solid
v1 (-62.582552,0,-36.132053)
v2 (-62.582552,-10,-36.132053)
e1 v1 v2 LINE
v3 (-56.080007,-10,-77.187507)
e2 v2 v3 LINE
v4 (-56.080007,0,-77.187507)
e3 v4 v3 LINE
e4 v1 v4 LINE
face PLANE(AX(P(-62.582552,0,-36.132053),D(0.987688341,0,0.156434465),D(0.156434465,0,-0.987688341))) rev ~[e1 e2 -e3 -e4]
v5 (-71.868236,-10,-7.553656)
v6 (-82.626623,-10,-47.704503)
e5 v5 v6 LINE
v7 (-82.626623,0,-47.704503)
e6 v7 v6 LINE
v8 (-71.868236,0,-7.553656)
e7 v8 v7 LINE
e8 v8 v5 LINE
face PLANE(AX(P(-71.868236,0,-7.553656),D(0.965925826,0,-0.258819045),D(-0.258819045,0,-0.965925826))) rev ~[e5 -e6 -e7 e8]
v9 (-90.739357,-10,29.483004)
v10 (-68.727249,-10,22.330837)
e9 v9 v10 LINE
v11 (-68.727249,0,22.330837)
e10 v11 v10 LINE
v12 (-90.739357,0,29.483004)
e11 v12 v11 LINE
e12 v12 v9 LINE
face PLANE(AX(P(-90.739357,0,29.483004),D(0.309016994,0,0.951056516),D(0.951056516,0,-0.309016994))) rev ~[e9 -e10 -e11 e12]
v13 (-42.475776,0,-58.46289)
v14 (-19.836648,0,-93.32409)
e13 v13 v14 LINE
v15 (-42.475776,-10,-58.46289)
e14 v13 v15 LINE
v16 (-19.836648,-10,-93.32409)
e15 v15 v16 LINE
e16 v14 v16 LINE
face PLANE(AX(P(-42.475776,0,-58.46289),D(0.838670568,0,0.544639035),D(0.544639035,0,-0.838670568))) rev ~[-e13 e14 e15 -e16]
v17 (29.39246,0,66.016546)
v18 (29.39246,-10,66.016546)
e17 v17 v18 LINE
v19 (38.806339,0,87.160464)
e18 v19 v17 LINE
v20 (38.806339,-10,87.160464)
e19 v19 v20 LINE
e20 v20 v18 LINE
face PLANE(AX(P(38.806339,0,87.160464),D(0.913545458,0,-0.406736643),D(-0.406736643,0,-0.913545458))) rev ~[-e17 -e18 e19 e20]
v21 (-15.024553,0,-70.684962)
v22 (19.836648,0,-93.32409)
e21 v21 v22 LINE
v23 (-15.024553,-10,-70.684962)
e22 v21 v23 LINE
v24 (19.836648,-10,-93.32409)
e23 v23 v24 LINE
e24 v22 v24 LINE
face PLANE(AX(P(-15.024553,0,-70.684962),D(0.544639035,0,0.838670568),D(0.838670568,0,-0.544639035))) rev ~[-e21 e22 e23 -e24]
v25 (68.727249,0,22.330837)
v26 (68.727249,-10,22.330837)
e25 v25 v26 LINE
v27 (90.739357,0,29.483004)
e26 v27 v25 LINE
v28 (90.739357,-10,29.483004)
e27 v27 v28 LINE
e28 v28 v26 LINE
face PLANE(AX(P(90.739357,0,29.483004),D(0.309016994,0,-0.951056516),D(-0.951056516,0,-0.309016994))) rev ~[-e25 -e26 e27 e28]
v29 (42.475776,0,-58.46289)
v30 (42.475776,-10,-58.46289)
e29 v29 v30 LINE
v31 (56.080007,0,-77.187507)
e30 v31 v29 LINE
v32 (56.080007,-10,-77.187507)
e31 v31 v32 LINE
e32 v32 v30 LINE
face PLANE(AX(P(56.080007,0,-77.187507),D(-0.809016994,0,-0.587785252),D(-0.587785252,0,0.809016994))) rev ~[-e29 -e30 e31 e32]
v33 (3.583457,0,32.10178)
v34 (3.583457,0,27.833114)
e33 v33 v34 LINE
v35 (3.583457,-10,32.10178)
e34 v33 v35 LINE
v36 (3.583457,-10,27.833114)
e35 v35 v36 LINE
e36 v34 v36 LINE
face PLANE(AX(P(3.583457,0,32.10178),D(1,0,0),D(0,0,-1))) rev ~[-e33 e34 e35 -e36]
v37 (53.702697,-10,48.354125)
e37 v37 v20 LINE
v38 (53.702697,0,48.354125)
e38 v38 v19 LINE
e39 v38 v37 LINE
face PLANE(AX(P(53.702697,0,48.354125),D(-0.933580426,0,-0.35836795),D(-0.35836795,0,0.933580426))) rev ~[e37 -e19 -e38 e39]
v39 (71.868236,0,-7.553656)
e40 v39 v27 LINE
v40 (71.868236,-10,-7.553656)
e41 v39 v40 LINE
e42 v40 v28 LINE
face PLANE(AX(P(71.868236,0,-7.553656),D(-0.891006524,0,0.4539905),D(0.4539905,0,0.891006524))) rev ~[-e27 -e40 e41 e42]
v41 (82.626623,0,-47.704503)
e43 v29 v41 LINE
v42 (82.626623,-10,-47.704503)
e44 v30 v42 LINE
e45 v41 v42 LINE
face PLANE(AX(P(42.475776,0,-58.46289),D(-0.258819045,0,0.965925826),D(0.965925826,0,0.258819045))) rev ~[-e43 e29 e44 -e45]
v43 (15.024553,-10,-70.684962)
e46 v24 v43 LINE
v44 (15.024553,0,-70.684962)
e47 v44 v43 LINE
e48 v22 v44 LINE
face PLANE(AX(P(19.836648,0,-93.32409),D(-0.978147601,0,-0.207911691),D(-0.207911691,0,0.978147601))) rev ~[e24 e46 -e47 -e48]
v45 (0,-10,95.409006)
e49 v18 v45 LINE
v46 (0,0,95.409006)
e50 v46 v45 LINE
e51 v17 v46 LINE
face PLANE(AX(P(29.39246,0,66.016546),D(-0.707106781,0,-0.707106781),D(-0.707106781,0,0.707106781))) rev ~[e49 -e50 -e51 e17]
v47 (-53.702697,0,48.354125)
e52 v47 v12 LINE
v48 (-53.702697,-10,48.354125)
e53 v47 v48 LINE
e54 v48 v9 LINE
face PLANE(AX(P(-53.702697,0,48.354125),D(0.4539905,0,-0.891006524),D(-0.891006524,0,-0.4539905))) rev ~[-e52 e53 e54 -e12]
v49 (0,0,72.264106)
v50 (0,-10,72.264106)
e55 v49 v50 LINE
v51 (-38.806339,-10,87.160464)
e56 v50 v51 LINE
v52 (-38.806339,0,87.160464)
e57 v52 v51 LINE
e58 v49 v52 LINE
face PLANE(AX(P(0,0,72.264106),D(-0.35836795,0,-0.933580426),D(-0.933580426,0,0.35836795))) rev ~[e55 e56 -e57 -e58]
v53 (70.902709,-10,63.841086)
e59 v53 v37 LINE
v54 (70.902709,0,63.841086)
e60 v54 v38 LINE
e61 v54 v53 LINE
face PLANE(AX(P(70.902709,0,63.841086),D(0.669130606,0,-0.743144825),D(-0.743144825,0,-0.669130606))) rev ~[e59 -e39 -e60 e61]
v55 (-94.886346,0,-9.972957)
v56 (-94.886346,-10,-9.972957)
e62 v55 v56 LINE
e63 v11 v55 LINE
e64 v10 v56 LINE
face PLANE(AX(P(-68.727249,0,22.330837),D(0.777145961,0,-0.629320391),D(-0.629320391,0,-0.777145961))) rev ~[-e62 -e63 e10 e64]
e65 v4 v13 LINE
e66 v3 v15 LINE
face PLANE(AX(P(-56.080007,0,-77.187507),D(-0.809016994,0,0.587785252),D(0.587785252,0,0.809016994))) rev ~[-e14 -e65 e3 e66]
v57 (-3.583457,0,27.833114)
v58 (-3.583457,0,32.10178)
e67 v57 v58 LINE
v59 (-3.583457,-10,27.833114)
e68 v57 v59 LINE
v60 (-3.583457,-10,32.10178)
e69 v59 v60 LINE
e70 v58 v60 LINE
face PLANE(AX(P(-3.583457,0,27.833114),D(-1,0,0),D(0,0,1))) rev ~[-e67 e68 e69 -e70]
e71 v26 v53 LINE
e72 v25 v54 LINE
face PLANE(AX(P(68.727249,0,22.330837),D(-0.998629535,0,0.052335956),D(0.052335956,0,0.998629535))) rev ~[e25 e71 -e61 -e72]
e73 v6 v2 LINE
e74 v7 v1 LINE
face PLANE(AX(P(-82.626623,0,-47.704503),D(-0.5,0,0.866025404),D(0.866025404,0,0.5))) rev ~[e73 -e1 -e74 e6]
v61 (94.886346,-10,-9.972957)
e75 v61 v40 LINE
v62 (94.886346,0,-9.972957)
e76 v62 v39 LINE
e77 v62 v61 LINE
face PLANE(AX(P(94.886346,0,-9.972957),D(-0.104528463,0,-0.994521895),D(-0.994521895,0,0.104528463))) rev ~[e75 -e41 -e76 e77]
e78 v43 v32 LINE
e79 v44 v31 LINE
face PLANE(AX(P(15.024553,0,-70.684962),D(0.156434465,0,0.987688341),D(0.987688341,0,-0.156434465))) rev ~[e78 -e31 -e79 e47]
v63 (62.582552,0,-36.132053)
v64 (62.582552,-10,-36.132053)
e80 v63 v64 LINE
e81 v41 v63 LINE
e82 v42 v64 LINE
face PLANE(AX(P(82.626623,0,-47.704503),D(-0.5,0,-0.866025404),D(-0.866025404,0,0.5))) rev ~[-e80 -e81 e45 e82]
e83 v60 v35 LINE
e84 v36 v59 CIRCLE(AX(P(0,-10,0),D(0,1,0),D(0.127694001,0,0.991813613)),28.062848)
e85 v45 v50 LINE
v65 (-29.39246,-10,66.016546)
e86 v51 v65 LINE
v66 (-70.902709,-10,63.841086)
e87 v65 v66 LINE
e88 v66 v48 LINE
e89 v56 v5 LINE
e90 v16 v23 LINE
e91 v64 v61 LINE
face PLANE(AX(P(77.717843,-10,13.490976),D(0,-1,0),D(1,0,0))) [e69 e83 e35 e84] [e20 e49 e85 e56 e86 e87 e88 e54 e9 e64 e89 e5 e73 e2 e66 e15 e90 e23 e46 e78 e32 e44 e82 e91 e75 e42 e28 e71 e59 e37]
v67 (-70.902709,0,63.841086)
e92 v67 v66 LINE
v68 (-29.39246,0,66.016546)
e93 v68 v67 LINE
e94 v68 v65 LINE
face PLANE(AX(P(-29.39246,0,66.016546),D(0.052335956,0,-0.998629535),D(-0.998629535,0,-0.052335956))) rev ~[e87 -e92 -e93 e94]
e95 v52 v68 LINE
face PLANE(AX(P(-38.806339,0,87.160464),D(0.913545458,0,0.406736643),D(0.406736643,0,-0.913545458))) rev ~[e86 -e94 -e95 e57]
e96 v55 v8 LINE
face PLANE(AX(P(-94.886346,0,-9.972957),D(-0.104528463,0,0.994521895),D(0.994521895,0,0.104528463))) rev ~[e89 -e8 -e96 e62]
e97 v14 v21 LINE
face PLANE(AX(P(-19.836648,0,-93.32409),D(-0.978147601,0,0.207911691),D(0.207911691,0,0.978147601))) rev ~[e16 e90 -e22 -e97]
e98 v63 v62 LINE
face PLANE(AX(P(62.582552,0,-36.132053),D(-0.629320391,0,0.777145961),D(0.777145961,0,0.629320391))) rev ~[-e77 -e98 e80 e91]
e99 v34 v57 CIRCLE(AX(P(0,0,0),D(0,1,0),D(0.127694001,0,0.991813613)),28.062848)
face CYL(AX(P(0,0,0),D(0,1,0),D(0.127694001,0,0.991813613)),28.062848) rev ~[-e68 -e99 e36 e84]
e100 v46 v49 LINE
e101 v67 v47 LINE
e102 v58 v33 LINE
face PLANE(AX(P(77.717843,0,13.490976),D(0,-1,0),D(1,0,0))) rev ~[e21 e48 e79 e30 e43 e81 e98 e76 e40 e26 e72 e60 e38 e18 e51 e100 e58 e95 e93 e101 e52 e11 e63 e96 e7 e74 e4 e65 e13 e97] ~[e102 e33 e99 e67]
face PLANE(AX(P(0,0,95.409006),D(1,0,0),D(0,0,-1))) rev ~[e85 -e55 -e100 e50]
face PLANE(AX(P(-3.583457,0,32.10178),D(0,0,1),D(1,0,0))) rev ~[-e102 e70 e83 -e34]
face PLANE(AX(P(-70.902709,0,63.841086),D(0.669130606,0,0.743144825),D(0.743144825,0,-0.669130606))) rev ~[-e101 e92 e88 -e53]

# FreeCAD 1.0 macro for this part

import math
import FreeCAD as App
import Part
import Sketcher
Q = App.Units.Quantity


def add_polygon(sketch, points):
    """Adds a closed chain of lines whose ends are joined by coincident constraints."""
    first, n = sketch.GeometryCount, len(points)
    for a, b in zip(points, points[1:] + points[:1]):
        sketch.addGeometry(Part.LineSegment(App.Vector(*a, 0), App.Vector(*b, 0)), False)
    for i in range(n):
        sketch.addConstraint(Sketcher.Constraint("Coincident", first + i, 2, first + (i + 1) % n, 1))

doc = App.newDocument("Part")
body = doc.addObject("PartDesign::Body", "Body")

# Sketch on XZ plane
sketch1 = body.newObject("Sketcher::SketchObject", "Sketch")
sketch1.AttachmentSupport = (doc.getObject("XZ_Plane"), [""])
sketch1.MapMode = "FlatFace"
add_polygon(sketch1, [(-94.9, -10), (-71.9, -7.6), (-82.6, -47.7), (-62.6, -36.1), (-56.1, -77.2), (-42.5, -58.5), (-19.8, -93.3), (-15, -70.7), (19.8, -93.3), (15, -70.7), (56.1, -77.2), (42.5, -58.5), (82.6, -47.7), (62.6, -36.1), (94.9, -10), (71.9, -7.6), (90.7, 29.5), (68.7, 22.3), (70.9, 63.8), (53.7, 48.4), (38.8, 87.2), (29.4, 66), (0, 95.4), (0, 72.3), (-38.8, 87.2), (-29.4, 66), (-70.9, 63.8), (-53.7, 48.4), (-90.7, 29.5), (-68.7, 22.3)])  # lines 0-29
sketch1.addGeometry(Part.LineSegment(App.Vector(3.6, 32.1, 0), App.Vector(3.6, 27.8, 0)), False)  # 30
sketch1.addGeometry(Part.ArcOfCircle(Part.Circle(App.Vector(0, 0, 0), App.Vector(0, 0, 1), 28.1), math.radians(97), math.radians(443)), False)  # 31
sketch1.addGeometry(Part.LineSegment(App.Vector(-3.6, 27.8, 0), App.Vector(-3.6, 32.1, 0)), False)  # 32
sketch1.addGeometry(Part.LineSegment(App.Vector(-3.6, 32.1, 0), App.Vector(3.6, 32.1, 0)), False)  # 33
sketch1.addConstraint(Sketcher.Constraint("Coincident", 30, 2, 31, 2))
sketch1.addConstraint(Sketcher.Constraint("Coincident", 31, 1, 32, 1))
sketch1.addConstraint(Sketcher.Constraint("Coincident", 32, 2, 33, 1))
sketch1.addConstraint(Sketcher.Constraint("Coincident", 33, 2, 30, 1))
sketch1.addConstraint(Sketcher.Constraint("Vertical", 22))
sketch1.addConstraint(Sketcher.Constraint("Vertical", 30))
sketch1.addConstraint(Sketcher.Constraint("Vertical", 32))
sketch1.addConstraint(Sketcher.Constraint("Horizontal", 33))
sketch1.addConstraint(Sketcher.Constraint("Coincident", 31, 3, -1, 1))
sketch1.addConstraint(Sketcher.Constraint("Symmetric", 5, 2, 7, 2, -2))
sketch1.addConstraint(Sketcher.Constraint("Symmetric", 6, 2, 8, 2, -2))
sketch1.addConstraint(Sketcher.Constraint("Symmetric", 3, 2, 9, 2, -2))
sketch1.addConstraint(Sketcher.Constraint("Symmetric", 4, 2, 10, 2, -2))
sketch1.addConstraint(Sketcher.Constraint("Symmetric", 1, 2, 11, 2, -2))
sketch1.addConstraint(Sketcher.Constraint("Symmetric", 2, 2, 12, 2, -2))
sketch1.addConstraint(Sketcher.Constraint("Symmetric", 0, 2, 14, 2, -2))
sketch1.addConstraint(Sketcher.Constraint("Symmetric", 19, 2, 23, 2, -2))
sketch1.addConstraint(Sketcher.Constraint("Symmetric", 20, 2, 24, 2, -2))
sketch1.addConstraint(Sketcher.Constraint("Symmetric", 17, 2, 25, 2, -2))
sketch1.addConstraint(Sketcher.Constraint("Symmetric", 18, 2, 26, 2, -2))
sketch1.addConstraint(Sketcher.Constraint("Symmetric", 15, 2, 27, 2, -2))
sketch1.addConstraint(Sketcher.Constraint("Symmetric", 16, 2, 28, 2, -2))
sketch1.addConstraint(Sketcher.Constraint("Symmetric", 13, 2, 29, 2, -2))
sketch1.addConstraint(Sketcher.Constraint("PointOnObject", 21, 2, -2))
sketch1.addConstraint(Sketcher.Constraint("Horizontal", 30, 2, 31, 1))
sketch1.addConstraint(Sketcher.Constraint("Equal", 0, 2))
sketch1.addConstraint(Sketcher.Constraint("Equal", 1, 3))
sketch1.addConstraint(Sketcher.Constraint("Equal", 2, 4))
sketch1.addConstraint(Sketcher.Constraint("Equal", 3, 5))
sketch1.addConstraint(Sketcher.Constraint("Equal", 4, 6))
sketch1.addConstraint(Sketcher.Constraint("Equal", 5, 7))
sketch1.addConstraint(Sketcher.Constraint("Equal", 7, 9))
sketch1.addConstraint(Sketcher.Constraint("Equal", 9, 11))
sketch1.addConstraint(Sketcher.Constraint("Equal", 11, 13))
sketch1.addConstraint(Sketcher.Constraint("Equal", 13, 15))
sketch1.addConstraint(Sketcher.Constraint("Equal", 14, 16))
sketch1.addConstraint(Sketcher.Constraint("Equal", 15, 17))
sketch1.addConstraint(Sketcher.Constraint("Equal", 16, 18))
sketch1.addConstraint(Sketcher.Constraint("Equal", 17, 19))
sketch1.addConstraint(Sketcher.Constraint("Equal", 18, 20))
sketch1.addConstraint(Sketcher.Constraint("Equal", 19, 21))
sketch1.addConstraint(Sketcher.Constraint("Equal", 21, 23))
sketch1.addConstraint(Sketcher.Constraint("Equal", 23, 25))
sketch1.addConstraint(Sketcher.Constraint("Equal", 25, 27))
sketch1.addConstraint(Sketcher.Constraint("Equal", 27, 29))
sketch1.addConstraint(Sketcher.Constraint("Angle", 0, Q("6 deg")))
sketch1.addConstraint(Sketcher.Constraint("Angle", 1, Q("-105 deg")))
sketch1.addConstraint(Sketcher.Constraint("Angle", 2, Q("30 deg")))
sketch1.addConstraint(Sketcher.Constraint("Angle", 3, Q("-81 deg")))
sketch1.addConstraint(Sketcher.Constraint("Angle", 5, Q("-57 deg")))
sketch1.addConstraint(Sketcher.Constraint("Angle", 15, Q("63 deg")))
sketch1.addConstraint(Sketcher.Constraint("Angle", 17, Q("87 deg")))
sketch1.addConstraint(Sketcher.Constraint("Angle", 19, Q("111 deg")))
sketch1.addConstraint(Sketcher.Constraint("DistanceY", 22, 2, 22, 1, Q("23.1449 mm")))
sketch1.addConstraint(Sketcher.Constraint("Radius", 31, Q("28.062848 mm")))
sketch1.addConstraint(Sketcher.Constraint("DistanceX", 33, 1, 33, 2, Q("7.166915 mm")))
sketch1.addConstraint(Sketcher.Constraint("DistanceY", 30, 2, 30, 1, Q("4.268666 mm")))
sketch1.addConstraint(Sketcher.Constraint("DistanceY", 4, 2, -1, 1, Q("58.46289 mm")))
pad1 = body.newObject("PartDesign::Pad", "Pad")
pad1.Profile = sketch1
pad1.Length = 10

doc.recompute()
